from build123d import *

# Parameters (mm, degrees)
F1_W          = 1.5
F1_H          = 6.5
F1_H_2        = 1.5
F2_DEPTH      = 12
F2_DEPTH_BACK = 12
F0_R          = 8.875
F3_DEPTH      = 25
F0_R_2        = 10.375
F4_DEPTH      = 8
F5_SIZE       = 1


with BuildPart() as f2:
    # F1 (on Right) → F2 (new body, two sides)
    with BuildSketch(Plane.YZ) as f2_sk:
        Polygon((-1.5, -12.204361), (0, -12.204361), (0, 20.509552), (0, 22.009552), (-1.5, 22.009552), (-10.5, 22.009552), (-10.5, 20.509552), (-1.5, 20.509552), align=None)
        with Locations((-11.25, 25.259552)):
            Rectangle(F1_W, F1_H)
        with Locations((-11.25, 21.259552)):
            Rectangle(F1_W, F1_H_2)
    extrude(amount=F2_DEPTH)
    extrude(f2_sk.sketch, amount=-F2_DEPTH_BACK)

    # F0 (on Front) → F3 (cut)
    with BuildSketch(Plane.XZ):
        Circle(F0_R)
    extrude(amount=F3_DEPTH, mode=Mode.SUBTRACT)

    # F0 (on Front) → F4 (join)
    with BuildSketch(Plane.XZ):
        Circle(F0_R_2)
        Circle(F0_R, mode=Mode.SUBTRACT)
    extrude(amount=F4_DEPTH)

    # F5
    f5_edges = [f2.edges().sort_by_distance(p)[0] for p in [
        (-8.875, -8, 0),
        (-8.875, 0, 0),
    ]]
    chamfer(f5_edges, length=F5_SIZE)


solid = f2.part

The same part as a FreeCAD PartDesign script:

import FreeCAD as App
import Part
import Sketcher
Q = App.Units.Quantity


def edges_at(feature, points):
    """Names of the edges that pass closest to the given points."""
    edges = feature.Shape.Edges
    near = lambda p: min(range(len(edges)), key=lambda i: edges[i].distToShape(Part.Vertex(*p))[0])
    return sorted({f"Edge{near(p) + 1}" for p in points})


def add_polygon(sketch, points):
    """Adds a closed chain of lines whose ends are joined by coincident constraints."""
    first, n = sketch.GeometryCount, len(points)
    for a, b in zip(points, points[1:] + points[:1]):
        sketch.addGeometry(Part.LineSegment(App.Vector(*a, 0), App.Vector(*b, 0)), False)
    for i in range(n):
        sketch.addConstraint(Sketcher.Constraint("Coincident", first + i, 2, first + (i + 1) % n, 1))

doc = App.newDocument("Part")
params = doc.addObject("Spreadsheet::Sheet", "Params")
for row, (alias, value) in enumerate([
    ("sketch1_height", "8 mm"),
    ("sketch1_width", "1.5 mm"),
    ("sketch1_width2", "10.5 mm"),
    ("sketch1_height2", "6.5 mm"),
    ("pad1_length", "12 mm"),
    ("pad1_length2", "12 mm"),
    ("sketch2_diameter", "17.75 mm"),
    ("pocket1_length", "25 mm"),
    ("sketch3_diameter", "20.75 mm"),
    ("sketch3_diameter2", "17.75 mm"),
    ("pad2_length", "8 mm"),
    ("chamfer_size", "1 mm"),
], start=1):
    params.set(f"A{row}", alias)
    params.set(f"B{row}", "=" + value)
    params.setAlias(f"B{row}", alias)

body = doc.addObject("PartDesign::Body", "Body")

sketch1 = body.newObject("Sketcher::SketchObject", "Sketch")
sketch1.AttachmentSupport = (doc.getObject("YZ_Plane"), [""])
sketch1.MapMode = "FlatFace"
add_polygon(sketch1, [(-1.5, -12.2), (0, -12.2), (0, 22), (-10.5, 22), (-10.5, 28.5), (-12, 28.5), (-12, 20.5), (-1.5, 20.5)])
sketch1.addConstraint([
    Sketcher.Constraint("Horizontal", 0),
    Sketcher.Constraint("Vertical", 1),
    Sketcher.Constraint("Horizontal", 2),
    Sketcher.Constraint("Vertical", 3),
    Sketcher.Constraint("Horizontal", 4),
    Sketcher.Constraint("Vertical", 5),
    Sketcher.Constraint("Horizontal", 6),
    Sketcher.Constraint("Vertical", 7),
    Sketcher.Constraint("PointOnObject", 0, 2, -2),
    Sketcher.Constraint("Equal", 0, 4),
    Sketcher.Constraint("DistanceY", 5, 2, 5, 1, Q("8 mm")),
    Sketcher.Constraint("DistanceX", 0, 1, 0, 2, Q("1.5 mm")),
    Sketcher.Constraint("DistanceX", 2, 2, 2, 1, Q("10.5 mm")),
    Sketcher.Constraint("DistanceY", 3, 1, 3, 2, Q("6.5 mm")),
    Sketcher.Constraint("DistanceY", 1, 1, 1, 2, Q("34.213913 mm")),
    Sketcher.Constraint("DistanceY", 0, 2, -1, 1, Q("12.204361 mm")),
])
sketch1.setExpression("Constraints[18]", "Params.sketch1_height")
sketch1.setExpression("Constraints[19]", "Params.sketch1_width")
sketch1.setExpression("Constraints[20]", "Params.sketch1_width2")
sketch1.setExpression("Constraints[21]", "Params.sketch1_height2")
pad1 = body.newObject("PartDesign::Pad", "Pad")
pad1.Profile = sketch1
pad1.Type = "TwoLengths"
pad1.setExpression("Length", "Params.pad1_length")
pad1.setExpression("Length2", "Params.pad1_length2")

sketch2 = body.newObject("Sketcher::SketchObject", "Sketch001")
sketch2.AttachmentSupport = (doc.getObject("XZ_Plane"), [""])
sketch2.MapMode = "FlatFace"
sketch2.addGeometry(Part.Circle(App.Vector(0, 0, 0), App.Vector(0, 0, 1), 9), False)
sketch2.addConstraint([
    Sketcher.Constraint("Coincident", 0, 3, -1, 1),
    Sketcher.Constraint("Diameter", 0, Q("17.75 mm")),
])
sketch2.setExpression("Constraints[1]", "Params.sketch2_diameter")
pocket1 = body.newObject("PartDesign::Pocket", "Pocket")
pocket1.Profile = sketch2
pocket1.setExpression("Length", "Params.pocket1_length")
pocket1.Reversed = True

sketch3 = body.newObject("Sketcher::SketchObject", "Sketch002")
sketch3.AttachmentSupport = (doc.getObject("XZ_Plane"), [""])
sketch3.MapMode = "FlatFace"
sketch3.addGeometry([
    Part.Circle(App.Vector(0, 0, 0), App.Vector(0, 0, 1), 10),
    Part.Circle(App.Vector(0, 0, 0), App.Vector(0, 0, 1), 9),
], False)
sketch3.addConstraint([
    Sketcher.Constraint("Coincident", 0, 3, -1, 1),
    Sketcher.Constraint("Coincident", 1, 3, -1, 1),
    Sketcher.Constraint("Diameter", 0, Q("20.75 mm")),
    Sketcher.Constraint("Diameter", 1, Q("17.75 mm")),
])
sketch3.setExpression("Constraints[2]", "Params.sketch3_diameter")
sketch3.setExpression("Constraints[3]", "Params.sketch3_diameter2")
pad2 = body.newObject("PartDesign::Pad", "Pad001")
pad2.Profile = sketch3
pad2.setExpression("Length", "Params.pad2_length")
doc.recompute()

chamfer = body.newObject("PartDesign::Chamfer", "Chamfer")
chamfer.Base = (pad2, edges_at(pad2, [(-8.875, -8, 0), (-8.875, 0, 0)]))
chamfer.setExpression("Size", "Params.chamfer_size")

doc.recompute()
